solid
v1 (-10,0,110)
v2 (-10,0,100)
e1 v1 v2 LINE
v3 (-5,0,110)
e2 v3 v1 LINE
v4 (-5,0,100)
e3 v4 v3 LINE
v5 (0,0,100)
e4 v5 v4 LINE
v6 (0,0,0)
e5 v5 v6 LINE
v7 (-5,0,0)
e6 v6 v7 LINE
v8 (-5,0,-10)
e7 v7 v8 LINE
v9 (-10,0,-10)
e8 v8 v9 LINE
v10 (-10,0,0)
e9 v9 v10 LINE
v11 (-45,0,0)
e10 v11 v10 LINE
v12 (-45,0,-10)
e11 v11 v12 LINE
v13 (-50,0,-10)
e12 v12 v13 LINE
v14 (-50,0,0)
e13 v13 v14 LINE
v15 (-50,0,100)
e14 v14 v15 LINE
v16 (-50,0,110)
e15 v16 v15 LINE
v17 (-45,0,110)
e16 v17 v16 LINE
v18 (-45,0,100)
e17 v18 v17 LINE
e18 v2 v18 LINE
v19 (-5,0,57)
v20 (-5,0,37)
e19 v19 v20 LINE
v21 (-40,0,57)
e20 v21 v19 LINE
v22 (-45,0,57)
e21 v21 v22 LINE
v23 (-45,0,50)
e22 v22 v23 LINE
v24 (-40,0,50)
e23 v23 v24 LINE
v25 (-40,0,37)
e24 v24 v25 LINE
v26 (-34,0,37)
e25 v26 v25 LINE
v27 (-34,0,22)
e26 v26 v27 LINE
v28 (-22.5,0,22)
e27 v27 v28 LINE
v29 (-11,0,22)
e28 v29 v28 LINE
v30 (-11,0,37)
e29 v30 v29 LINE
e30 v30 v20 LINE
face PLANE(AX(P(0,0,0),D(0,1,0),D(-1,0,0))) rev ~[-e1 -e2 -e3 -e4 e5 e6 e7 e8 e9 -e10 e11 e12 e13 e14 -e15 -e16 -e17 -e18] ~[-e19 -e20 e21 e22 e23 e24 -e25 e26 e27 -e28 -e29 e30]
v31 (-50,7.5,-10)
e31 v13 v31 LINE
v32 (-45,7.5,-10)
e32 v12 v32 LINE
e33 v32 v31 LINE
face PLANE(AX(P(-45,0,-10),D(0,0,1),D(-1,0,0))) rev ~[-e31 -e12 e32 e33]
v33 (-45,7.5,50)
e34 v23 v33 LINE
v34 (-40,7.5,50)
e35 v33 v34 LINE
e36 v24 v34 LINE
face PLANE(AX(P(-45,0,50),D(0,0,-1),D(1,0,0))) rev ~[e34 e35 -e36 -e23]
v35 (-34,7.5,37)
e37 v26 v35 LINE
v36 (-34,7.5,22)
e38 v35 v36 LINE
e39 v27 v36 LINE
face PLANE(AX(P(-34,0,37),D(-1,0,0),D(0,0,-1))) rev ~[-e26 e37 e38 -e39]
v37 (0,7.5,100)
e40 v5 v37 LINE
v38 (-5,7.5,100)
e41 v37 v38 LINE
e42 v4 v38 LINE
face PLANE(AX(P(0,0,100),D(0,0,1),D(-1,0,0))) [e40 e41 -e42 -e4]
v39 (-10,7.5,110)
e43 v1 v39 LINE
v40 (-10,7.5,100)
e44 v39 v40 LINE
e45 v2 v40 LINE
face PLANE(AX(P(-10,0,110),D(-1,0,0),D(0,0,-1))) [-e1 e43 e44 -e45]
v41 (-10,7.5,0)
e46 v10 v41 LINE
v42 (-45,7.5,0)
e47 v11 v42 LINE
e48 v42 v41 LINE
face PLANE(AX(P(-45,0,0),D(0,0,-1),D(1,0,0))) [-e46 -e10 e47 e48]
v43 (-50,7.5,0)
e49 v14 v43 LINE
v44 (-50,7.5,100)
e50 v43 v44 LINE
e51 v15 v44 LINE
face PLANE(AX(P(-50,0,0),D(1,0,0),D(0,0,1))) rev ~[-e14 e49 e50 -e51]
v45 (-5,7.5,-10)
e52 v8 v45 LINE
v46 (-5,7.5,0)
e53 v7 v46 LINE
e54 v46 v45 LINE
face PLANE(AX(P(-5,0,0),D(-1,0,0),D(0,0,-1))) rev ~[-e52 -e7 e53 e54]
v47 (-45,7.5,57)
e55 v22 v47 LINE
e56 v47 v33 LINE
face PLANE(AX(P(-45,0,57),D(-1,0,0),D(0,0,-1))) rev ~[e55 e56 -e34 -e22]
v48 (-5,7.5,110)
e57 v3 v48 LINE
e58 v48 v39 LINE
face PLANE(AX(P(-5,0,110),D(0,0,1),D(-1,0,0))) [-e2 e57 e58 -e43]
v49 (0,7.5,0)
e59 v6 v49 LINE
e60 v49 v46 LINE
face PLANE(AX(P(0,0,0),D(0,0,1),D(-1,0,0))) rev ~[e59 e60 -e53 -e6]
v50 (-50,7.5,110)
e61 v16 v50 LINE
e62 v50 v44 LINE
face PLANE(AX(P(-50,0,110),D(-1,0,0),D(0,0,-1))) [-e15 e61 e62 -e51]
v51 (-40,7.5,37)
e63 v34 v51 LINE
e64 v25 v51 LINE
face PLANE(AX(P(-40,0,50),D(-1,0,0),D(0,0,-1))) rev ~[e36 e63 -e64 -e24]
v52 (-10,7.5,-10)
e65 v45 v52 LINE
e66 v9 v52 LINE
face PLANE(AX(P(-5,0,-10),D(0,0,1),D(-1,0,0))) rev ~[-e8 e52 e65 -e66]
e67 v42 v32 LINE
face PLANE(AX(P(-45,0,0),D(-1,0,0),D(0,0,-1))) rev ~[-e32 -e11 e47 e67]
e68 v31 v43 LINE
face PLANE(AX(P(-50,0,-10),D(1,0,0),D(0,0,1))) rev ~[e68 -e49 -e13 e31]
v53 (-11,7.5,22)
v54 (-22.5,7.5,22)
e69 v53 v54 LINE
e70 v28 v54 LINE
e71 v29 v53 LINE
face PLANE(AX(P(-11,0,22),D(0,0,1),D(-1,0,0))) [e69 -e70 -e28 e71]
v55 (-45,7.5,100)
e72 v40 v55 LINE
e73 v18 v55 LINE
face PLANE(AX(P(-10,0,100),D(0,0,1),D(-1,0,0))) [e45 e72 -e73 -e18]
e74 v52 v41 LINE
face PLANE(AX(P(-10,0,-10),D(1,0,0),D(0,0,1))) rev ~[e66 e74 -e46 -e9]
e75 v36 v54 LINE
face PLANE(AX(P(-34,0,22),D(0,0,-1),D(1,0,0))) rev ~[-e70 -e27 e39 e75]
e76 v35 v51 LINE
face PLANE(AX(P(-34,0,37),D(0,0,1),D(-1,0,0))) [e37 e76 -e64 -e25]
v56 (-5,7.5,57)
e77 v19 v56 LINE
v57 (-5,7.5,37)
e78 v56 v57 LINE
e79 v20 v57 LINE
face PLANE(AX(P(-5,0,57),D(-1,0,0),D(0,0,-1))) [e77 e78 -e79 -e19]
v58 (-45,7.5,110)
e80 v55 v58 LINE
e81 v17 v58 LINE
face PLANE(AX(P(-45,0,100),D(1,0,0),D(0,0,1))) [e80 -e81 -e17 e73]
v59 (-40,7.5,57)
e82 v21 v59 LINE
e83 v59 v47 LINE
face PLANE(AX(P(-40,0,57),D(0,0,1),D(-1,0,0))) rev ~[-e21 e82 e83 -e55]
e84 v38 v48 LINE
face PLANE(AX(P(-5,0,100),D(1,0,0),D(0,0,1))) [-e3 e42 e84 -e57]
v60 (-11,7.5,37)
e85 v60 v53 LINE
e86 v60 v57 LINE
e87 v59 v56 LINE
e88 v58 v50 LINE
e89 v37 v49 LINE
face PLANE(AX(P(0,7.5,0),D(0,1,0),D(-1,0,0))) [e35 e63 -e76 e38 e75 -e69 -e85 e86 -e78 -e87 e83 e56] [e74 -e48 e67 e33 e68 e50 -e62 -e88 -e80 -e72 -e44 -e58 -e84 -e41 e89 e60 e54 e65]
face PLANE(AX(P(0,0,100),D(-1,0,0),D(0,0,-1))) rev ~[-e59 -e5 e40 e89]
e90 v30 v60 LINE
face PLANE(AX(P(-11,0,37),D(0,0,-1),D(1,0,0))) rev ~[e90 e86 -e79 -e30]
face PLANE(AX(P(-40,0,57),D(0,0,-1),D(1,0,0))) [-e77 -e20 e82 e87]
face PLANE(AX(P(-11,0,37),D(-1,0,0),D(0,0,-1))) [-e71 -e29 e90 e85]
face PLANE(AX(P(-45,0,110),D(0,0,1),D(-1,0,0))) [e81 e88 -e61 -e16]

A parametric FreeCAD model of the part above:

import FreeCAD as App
import Part
import Sketcher
Q = App.Units.Quantity

doc = App.newDocument("Part")
params = doc.addObject("Spreadsheet::Sheet", "Params")
for row, (alias, value) in enumerate([
    ("sketch1_width", "5 mm"),
    ("sketch1_height", "10 mm"),
    ("sketch1_height2", "100 mm"),
    ("sketch1_width2", "35 mm"),
    ("sketch1_width3", "6 mm"),
    ("pad1_length", "7.5 mm"),
], start=1):
    params.set(f"A{row}", alias)
    params.set(f"B{row}", "=" + value)
    params.setAlias(f"B{row}", alias)

body = doc.addObject("PartDesign::Body", "Body")

# Sketch on XZ plane
sketch1 = body.newObject("Sketcher::SketchObject", "Sketch")
sketch1.AttachmentSupport = (doc.getObject("XZ_Plane"), [""])
sketch1.MapMode = "FlatFace"
sketch1.addGeometry(Part.LineSegment(App.Vector(-50, -10, 0), App.Vector(-50, 110, 0)), False)
sketch1.addGeometry(Part.LineSegment(App.Vector(-50, 110, 0), App.Vector(-45, 110, 0)), False)
sketch1.addGeometry(Part.LineSegment(App.Vector(-45, 110, 0), App.Vector(-45, 100, 0)), False)
sketch1.addGeometry(Part.LineSegment(App.Vector(-45, 100, 0), App.Vector(-10, 100, 0)), False)
sketch1.addGeometry(Part.LineSegment(App.Vector(-10, 100, 0), App.Vector(-10, 110, 0)), False)
sketch1.addGeometry(Part.LineSegment(App.Vector(-10, 110, 0), App.Vector(-5, 110, 0)), False)
sketch1.addGeometry(Part.LineSegment(App.Vector(-5, 110, 0), App.Vector(-5, 100, 0)), False)
sketch1.addGeometry(Part.LineSegment(App.Vector(-5, 100, 0), App.Vector(0, 100, 0)), False)
sketch1.addGeometry(Part.LineSegment(App.Vector(0, 100, 0), App.Vector(0, 0, 0)), False)
sketch1.addGeometry(Part.LineSegment(App.Vector(0, 0, 0), App.Vector(-5, 0, 0)), False)
sketch1.addGeometry(Part.LineSegment(App.Vector(-5, 0, 0), App.Vector(-5, -10, 0)), False)
sketch1.addGeometry(Part.LineSegment(App.Vector(-5, -10, 0), App.Vector(-10, -10, 0)), False)
sketch1.addGeometry(Part.LineSegment(App.Vector(-10, -10, 0), App.Vector(-10, 0, 0)), False)
sketch1.addGeometry(Part.LineSegment(App.Vector(-10, 0, 0), App.Vector(-45, 0, 0)), False)
sketch1.addGeometry(Part.LineSegment(App.Vector(-45, 0, 0), App.Vector(-45, -10, 0)), False)
sketch1.addGeometry(Part.LineSegment(App.Vector(-45, -10, 0), App.Vector(-50, -10, 0)), False)
sketch1.addGeometry(Part.LineSegment(App.Vector(-40, 37, 0), App.Vector(-34, 37, 0)), False)
sketch1.addGeometry(Part.LineSegment(App.Vector(-34, 37, 0), App.Vector(-34, 22, 0)), False)
sketch1.addGeometry(Part.LineSegment(App.Vector(-34, 22, 0), App.Vector(-11, 22, 0)), False)
sketch1.addGeometry(Part.LineSegment(App.Vector(-11, 22, 0), App.Vector(-11, 37, 0)), False)
sketch1.addGeometry(Part.LineSegment(App.Vector(-11, 37, 0), App.Vector(-5, 37, 0)), False)
sketch1.addGeometry(Part.LineSegment(App.Vector(-5, 37, 0), App.Vector(-5, 57, 0)), False)
sketch1.addGeometry(Part.LineSegment(App.Vector(-5, 57, 0), App.Vector(-45, 57, 0)), False)
sketch1.addGeometry(Part.LineSegment(App.Vector(-45, 57, 0), App.Vector(-45, 50, 0)), False)
sketch1.addGeometry(Part.LineSegment(App.Vector(-45, 50, 0), App.Vector(-40, 50, 0)), False)
sketch1.addGeometry(Part.LineSegment(App.Vector(-40, 50, 0), App.Vector(-40, 37, 0)), False)
sketch1.addConstraint(Sketcher.Constraint("Coincident", 0, 2, 1, 1))
sketch1.addConstraint(Sketcher.Constraint("Coincident", 1, 2, 2, 1))
sketch1.addConstraint(Sketcher.Constraint("Coincident", 2, 2, 3, 1))
sketch1.addConstraint(Sketcher.Constraint("Coincident", 3, 2, 4, 1))
sketch1.addConstraint(Sketcher.Constraint("Coincident", 4, 2, 5, 1))
sketch1.addConstraint(Sketcher.Constraint("Coincident", 5, 2, 6, 1))
sketch1.addConstraint(Sketcher.Constraint("Coincident", 6, 2, 7, 1))
sketch1.addConstraint(Sketcher.Constraint("Coincident", 7, 2, 8, 1))
sketch1.addConstraint(Sketcher.Constraint("Coincident", 8, 2, 9, 1))
sketch1.addConstraint(Sketcher.Constraint("Coincident", 9, 2, 10, 1))
sketch1.addConstraint(Sketcher.Constraint("Coincident", 10, 2, 11, 1))
sketch1.addConstraint(Sketcher.Constraint("Coincident", 11, 2, 12, 1))
sketch1.addConstraint(Sketcher.Constraint("Coincident", 12, 2, 13, 1))
sketch1.addConstraint(Sketcher.Constraint("Coincident", 13, 2, 14, 1))
sketch1.addConstraint(Sketcher.Constraint("Coincident", 14, 2, 15, 1))
sketch1.addConstraint(Sketcher.Constraint("Coincident", 15, 2, 0, 1))
sketch1.addConstraint(Sketcher.Constraint("Coincident", 16, 2, 17, 1))
sketch1.addConstraint(Sketcher.Constraint("Coincident", 17, 2, 18, 1))
sketch1.addConstraint(Sketcher.Constraint("Coincident", 18, 2, 19, 1))
sketch1.addConstraint(Sketcher.Constraint("Coincident", 19, 2, 20, 1))
sketch1.addConstraint(Sketcher.Constraint("Coincident", 20, 2, 21, 1))
sketch1.addConstraint(Sketcher.Constraint("Coincident", 21, 2, 22, 1))
sketch1.addConstraint(Sketcher.Constraint("Coincident", 22, 2, 23, 1))
sketch1.addConstraint(Sketcher.Constraint("Coincident", 23, 2, 24, 1))
sketch1.addConstraint(Sketcher.Constraint("Coincident", 24, 2, 25, 1))
sketch1.addConstraint(Sketcher.Constraint("Coincident", 25, 2, 16, 1))
sketch1.addConstraint(Sketcher.Constraint("Vertical", 0))
sketch1.addConstraint(Sketcher.Constraint("Horizontal", 1))
sketch1.addConstraint(Sketcher.Constraint("Vertical", 2))
sketch1.addConstraint(Sketcher.Constraint("Horizontal", 3))
sketch1.addConstraint(Sketcher.Constraint("Vertical", 4))
sketch1.addConstraint(Sketcher.Constraint("Horizontal", 5))
sketch1.addConstraint(Sketcher.Constraint("Vertical", 6))
sketch1.addConstraint(Sketcher.Constraint("Horizontal", 7))
sketch1.addConstraint(Sketcher.Constraint("Vertical", 8))
sketch1.addConstraint(Sketcher.Constraint("Horizontal", 9))
sketch1.addConstraint(Sketcher.Constraint("Vertical", 10))
sketch1.addConstraint(Sketcher.Constraint("Horizontal", 11))
sketch1.addConstraint(Sketcher.Constraint("Vertical", 12))
sketch1.addConstraint(Sketcher.Constraint("Horizontal", 13))
sketch1.addConstraint(Sketcher.Constraint("Vertical", 14))
sketch1.addConstraint(Sketcher.Constraint("Horizontal", 15))
sketch1.addConstraint(Sketcher.Constraint("Horizontal", 16))
sketch1.addConstraint(Sketcher.Constraint("Vertical", 17))
sketch1.addConstraint(Sketcher.Constraint("Horizontal", 18))
sketch1.addConstraint(Sketcher.Constraint("Vertical", 19))
sketch1.addConstraint(Sketcher.Constraint("Horizontal", 20))
sketch1.addConstraint(Sketcher.Constraint("Vertical", 21))
sketch1.addConstraint(Sketcher.Constraint("Horizontal", 22))
sketch1.addConstraint(Sketcher.Constraint("Vertical", 23))
sketch1.addConstraint(Sketcher.Constraint("Horizontal", 24))
sketch1.addConstraint(Sketcher.Constraint("Vertical", 25))
sketch1.addConstraint(Sketcher.Constraint("Coincident", 8, 2, -1, 1))
sketch1.addConstraint(Sketcher.Constraint("PointOnObject", 12, 2, -1))
sketch1.addConstraint(Sketcher.Constraint("Horizontal", 1, 2, 4, 2))
sketch1.addConstraint(Sketcher.Constraint("Horizontal", 3, 2, 6, 2))
sketch1.addConstraint(Sketcher.Constraint("Horizontal", 11, 2, 14, 2))
sketch1.addConstraint(Sketcher.Constraint("Horizontal", 16, 2, 19, 2))
sketch1.addConstraint(Sketcher.Constraint("Vertical", 6, 2, 9, 2))
sketch1.addConstraint(Sketcher.Constraint("Vertical", 4, 2, 11, 2))
sketch1.addConstraint(Sketcher.Constraint("Vertical", 2, 2, 13, 2))
sketch1.addConstraint(Sketcher.Constraint("Vertical", 10, 2, 20, 2))
sketch1.addConstraint(Sketcher.Constraint("Vertical", 14, 2, 22, 2))
sketch1.addConstraint(Sketcher.Constraint("Equal", 1, 5))
sketch1.addConstraint(Sketcher.Constraint("Equal", 5, 7))
sketch1.addConstraint(Sketcher.Constraint("Equal", 16, 20))
sketch1.addConstraint(Sketcher.Constraint("Equal", 15, 24))
sketch1.addConstraint(Sketcher.Constraint("Equal", 6, 10))
sketch1.addConstraint(Sketcher.Constraint("DistanceX", 1, 1, 1, 2, Q("5 mm")))
sketch1.addConstraint(Sketcher.Constraint("DistanceY", 2, 2, 2, 1, Q("10 mm")))
sketch1.addConstraint(Sketcher.Constraint("DistanceY", 8, 2, 8, 1, Q("100 mm")))
sketch1.addConstraint(Sketcher.Constraint("DistanceX", 3, 1, 3, 2, Q("35 mm")))
sketch1.addConstraint(Sketcher.Constraint("DistanceX", 16, 1, 16, 2, Q("6 mm")))
sketch1.addConstraint(Sketcher.Constraint("DistanceY", 17, 2, 17, 1, Q("15 mm")))
sketch1.addConstraint(Sketcher.Constraint("DistanceY", 21, 1, 21, 2, Q("20 mm")))
sketch1.addConstraint(Sketcher.Constraint("DistanceY", 23, 2, 23, 1, Q("7 mm")))
sketch1.addConstraint(Sketcher.Constraint("DistanceY", -1, 1, 16, 2, Q("37 mm")))
sketch1.setExpression("Constraints[68]", "Params.sketch1_width")
sketch1.setExpression("Constraints[69]", "Params.sketch1_height")
sketch1.setExpression("Constraints[70]", "Params.sketch1_height2")
sketch1.setExpression("Constraints[71]", "Params.sketch1_width2")
sketch1.setExpression("Constraints[72]", "Params.sketch1_width3")
pad1 = body.newObject("PartDesign::Pad", "Pad")
pad1.Profile = sketch1
pad1.setExpression("Length", "Params.pad1_length")
pad1.Reversed = True

doc.recompute()
